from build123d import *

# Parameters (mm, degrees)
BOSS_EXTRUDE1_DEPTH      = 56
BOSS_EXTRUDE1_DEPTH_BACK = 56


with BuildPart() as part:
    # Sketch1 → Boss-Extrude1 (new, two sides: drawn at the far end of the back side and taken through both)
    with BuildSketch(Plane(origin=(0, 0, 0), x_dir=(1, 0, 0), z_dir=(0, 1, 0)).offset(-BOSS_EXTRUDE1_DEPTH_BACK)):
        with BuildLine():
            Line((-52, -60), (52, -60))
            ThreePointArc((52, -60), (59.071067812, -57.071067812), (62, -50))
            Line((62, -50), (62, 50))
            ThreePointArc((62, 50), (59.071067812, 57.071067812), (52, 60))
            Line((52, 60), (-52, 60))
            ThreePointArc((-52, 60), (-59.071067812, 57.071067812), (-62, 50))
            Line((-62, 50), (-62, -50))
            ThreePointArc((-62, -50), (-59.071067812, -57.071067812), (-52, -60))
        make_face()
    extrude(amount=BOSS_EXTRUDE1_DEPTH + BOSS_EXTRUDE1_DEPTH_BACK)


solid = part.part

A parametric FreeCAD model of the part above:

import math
import FreeCAD as App
import Part
import Sketcher

V = App.Vector

doc = App.newDocument("Part")
params = doc.addObject("Spreadsheet::Sheet", "Params")
for row, (alias, value) in enumerate([
    ("sketch1_radius", "10 mm"),
    ("sketch1_width", "104 mm"),
    ("sketch1_height", "100 mm"),
    ("pad1_length", "56 mm"),
    ("pad1_length2", "56 mm"),
], start=1):
    params.set(f"A{row}", alias)
    params.set(f"B{row}", "=" + value)
    params.setAlias(f"B{row}", alias)

body = doc.addObject("PartDesign::Body", "Body")

sketch1 = doc.addObject("Sketcher::SketchObject", "Sketch")
body.addObject(sketch1)
sketch1.AttachmentSupport = (doc.XZ_Plane, [""])
sketch1.MapMode = "FlatFace"
sketch1.addGeometry([
    Part.LineSegment(V(-52, 60, 0), V(52, 60, 0)),
    Part.ArcOfCircle(Part.Circle(V(52, 50, 0), V(0, 0, 1), 10), math.radians(0), math.radians(90)),
    Part.LineSegment(V(62, 50, 0), V(62, -50, 0)),
    Part.ArcOfCircle(Part.Circle(V(52, -50, 0), V(0, 0, 1), 10), math.radians(-90), math.radians(0)),
    Part.LineSegment(V(52, -60, 0), V(-52, -60, 0)),
    Part.ArcOfCircle(Part.Circle(V(-52, -50, 0), V(0, 0, 1), 10), math.radians(180), math.radians(270)),
    Part.LineSegment(V(-62, -50, 0), V(-62, 50, 0)),
    Part.ArcOfCircle(Part.Circle(V(-52, 50, 0), V(0, 0, 1), 10), math.radians(90), math.radians(180)),
], False)
sketch1.addConstraint([
    Sketcher.Constraint("Tangent", 0, 2, 1, 2),
    Sketcher.Constraint("Tangent", 1, 1, 2, 1),
    Sketcher.Constraint("Tangent", 2, 2, 3, 2),
    Sketcher.Constraint("Tangent", 3, 1, 4, 1),
    Sketcher.Constraint("Tangent", 4, 2, 5, 2),
    Sketcher.Constraint("Tangent", 5, 1, 6, 1),
    Sketcher.Constraint("Tangent", 6, 2, 7, 2),
    Sketcher.Constraint("Tangent", 7, 1, 0, 1),
    Sketcher.Constraint("Horizontal", 0),
    Sketcher.Constraint("Vertical", 2),
    Sketcher.Constraint("Horizontal", 4),
    Sketcher.Constraint("Vertical", 6),
    Sketcher.Constraint("Equal", 1, 3),
    Sketcher.Constraint("Equal", 3, 5),
    Sketcher.Constraint("Equal", 5, 7),
    Sketcher.Constraint("Symmetric", 1, 3, 5, 3, -1, 1),
    Sketcher.Constraint("Radius", 1, 10.0),
    Sketcher.Constraint("DistanceX", 0, 1, 0, 2, 104.0),
    Sketcher.Constraint("DistanceY", 2, 2, 2, 1, 100.0),
])
sketch1.setExpression("Constraints[16]", "Params.sketch1_radius")
sketch1.setExpression("Constraints[17]", "Params.sketch1_width")
sketch1.setExpression("Constraints[18]", "Params.sketch1_height")
pad1 = doc.addObject("PartDesign::Pad", "Pad")
body.addObject(pad1)
pad1.Profile = sketch1
pad1.Type = "TwoLengths"
pad1.setExpression("Length", "Params.pad1_length")
pad1.setExpression("Length2", "Params.pad1_length2")
pad1.Reversed = True

doc.recompute()
